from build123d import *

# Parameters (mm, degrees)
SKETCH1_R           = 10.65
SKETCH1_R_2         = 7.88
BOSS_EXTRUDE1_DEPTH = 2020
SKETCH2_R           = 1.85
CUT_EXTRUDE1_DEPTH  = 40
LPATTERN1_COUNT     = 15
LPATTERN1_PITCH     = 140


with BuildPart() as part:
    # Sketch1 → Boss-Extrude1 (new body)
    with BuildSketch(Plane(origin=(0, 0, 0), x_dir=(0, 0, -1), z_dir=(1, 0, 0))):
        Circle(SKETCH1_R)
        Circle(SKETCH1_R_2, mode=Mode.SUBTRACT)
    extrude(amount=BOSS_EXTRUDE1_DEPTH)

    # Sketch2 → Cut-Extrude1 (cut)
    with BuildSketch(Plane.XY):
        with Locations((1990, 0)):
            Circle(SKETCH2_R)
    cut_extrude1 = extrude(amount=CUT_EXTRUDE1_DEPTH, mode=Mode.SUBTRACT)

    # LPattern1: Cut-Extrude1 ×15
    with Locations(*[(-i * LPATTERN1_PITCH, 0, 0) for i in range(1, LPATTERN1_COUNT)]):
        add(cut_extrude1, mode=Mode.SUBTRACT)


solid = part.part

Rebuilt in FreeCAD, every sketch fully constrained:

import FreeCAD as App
import Part
import Sketcher

doc = App.newDocument("Part")
body = doc.addObject("PartDesign::Body", "Body")

sketch1 = body.newObject("Sketcher::SketchObject", "Sketch")
sketch1.AttachmentSupport = (doc.getObject("YZ_Plane"), [""])
sketch1.MapMode = "FlatFace"
sketch1.addGeometry([
    Part.Circle(App.Vector(0, 0, 0), App.Vector(0, 0, 1), 11),
    Part.Circle(App.Vector(0, 0, 0), App.Vector(0, 0, 1), 8),
], False)
sketch1.addConstraint([
    Sketcher.Constraint("Coincident", 0, 3, -1, 1),
    Sketcher.Constraint("Coincident", 1, 3, -1, 1),
    Sketcher.Constraint("Diameter", 0, 21.3),
    Sketcher.Constraint("Diameter", 1, 15.76),
])
pad1 = body.newObject("PartDesign::Pad", "Pad")
pad1.Profile = sketch1
pad1.Length = 2020

sketch2 = body.newObject("Sketcher::SketchObject", "Sketch001")
sketch2.AttachmentSupport = (doc.getObject("XY_Plane"), [""])
sketch2.MapMode = "FlatFace"
sketch2.addGeometry(Part.Circle(App.Vector(1990, 0, 0), App.Vector(0, 0, 1), 1.9), False)
sketch2.addConstraint([
    Sketcher.Constraint("PointOnObject", 0, 3, -1),
    Sketcher.Constraint("Diameter", 0, 3.7),
    Sketcher.Constraint("DistanceX", -1, 1, 0, 3, 1990.0),
])
pocket1 = body.newObject("PartDesign::Pocket", "Pocket")
pocket1.Profile = sketch2
pocket1.Length = 40
pocket1.Reversed = True
doc.recompute()

linearpattern = body.newObject("PartDesign::LinearPattern", "LinearPattern")
linearpattern.Originals = [pocket1]
linearpattern.Direction = (doc.getObject("X_Axis"), [""])
linearpattern.Mode = "offset"
linearpattern.Offset = 140
linearpattern.Occurrences = 15
linearpattern.Reversed = True
body.Tip = linearpattern

doc.recompute()
